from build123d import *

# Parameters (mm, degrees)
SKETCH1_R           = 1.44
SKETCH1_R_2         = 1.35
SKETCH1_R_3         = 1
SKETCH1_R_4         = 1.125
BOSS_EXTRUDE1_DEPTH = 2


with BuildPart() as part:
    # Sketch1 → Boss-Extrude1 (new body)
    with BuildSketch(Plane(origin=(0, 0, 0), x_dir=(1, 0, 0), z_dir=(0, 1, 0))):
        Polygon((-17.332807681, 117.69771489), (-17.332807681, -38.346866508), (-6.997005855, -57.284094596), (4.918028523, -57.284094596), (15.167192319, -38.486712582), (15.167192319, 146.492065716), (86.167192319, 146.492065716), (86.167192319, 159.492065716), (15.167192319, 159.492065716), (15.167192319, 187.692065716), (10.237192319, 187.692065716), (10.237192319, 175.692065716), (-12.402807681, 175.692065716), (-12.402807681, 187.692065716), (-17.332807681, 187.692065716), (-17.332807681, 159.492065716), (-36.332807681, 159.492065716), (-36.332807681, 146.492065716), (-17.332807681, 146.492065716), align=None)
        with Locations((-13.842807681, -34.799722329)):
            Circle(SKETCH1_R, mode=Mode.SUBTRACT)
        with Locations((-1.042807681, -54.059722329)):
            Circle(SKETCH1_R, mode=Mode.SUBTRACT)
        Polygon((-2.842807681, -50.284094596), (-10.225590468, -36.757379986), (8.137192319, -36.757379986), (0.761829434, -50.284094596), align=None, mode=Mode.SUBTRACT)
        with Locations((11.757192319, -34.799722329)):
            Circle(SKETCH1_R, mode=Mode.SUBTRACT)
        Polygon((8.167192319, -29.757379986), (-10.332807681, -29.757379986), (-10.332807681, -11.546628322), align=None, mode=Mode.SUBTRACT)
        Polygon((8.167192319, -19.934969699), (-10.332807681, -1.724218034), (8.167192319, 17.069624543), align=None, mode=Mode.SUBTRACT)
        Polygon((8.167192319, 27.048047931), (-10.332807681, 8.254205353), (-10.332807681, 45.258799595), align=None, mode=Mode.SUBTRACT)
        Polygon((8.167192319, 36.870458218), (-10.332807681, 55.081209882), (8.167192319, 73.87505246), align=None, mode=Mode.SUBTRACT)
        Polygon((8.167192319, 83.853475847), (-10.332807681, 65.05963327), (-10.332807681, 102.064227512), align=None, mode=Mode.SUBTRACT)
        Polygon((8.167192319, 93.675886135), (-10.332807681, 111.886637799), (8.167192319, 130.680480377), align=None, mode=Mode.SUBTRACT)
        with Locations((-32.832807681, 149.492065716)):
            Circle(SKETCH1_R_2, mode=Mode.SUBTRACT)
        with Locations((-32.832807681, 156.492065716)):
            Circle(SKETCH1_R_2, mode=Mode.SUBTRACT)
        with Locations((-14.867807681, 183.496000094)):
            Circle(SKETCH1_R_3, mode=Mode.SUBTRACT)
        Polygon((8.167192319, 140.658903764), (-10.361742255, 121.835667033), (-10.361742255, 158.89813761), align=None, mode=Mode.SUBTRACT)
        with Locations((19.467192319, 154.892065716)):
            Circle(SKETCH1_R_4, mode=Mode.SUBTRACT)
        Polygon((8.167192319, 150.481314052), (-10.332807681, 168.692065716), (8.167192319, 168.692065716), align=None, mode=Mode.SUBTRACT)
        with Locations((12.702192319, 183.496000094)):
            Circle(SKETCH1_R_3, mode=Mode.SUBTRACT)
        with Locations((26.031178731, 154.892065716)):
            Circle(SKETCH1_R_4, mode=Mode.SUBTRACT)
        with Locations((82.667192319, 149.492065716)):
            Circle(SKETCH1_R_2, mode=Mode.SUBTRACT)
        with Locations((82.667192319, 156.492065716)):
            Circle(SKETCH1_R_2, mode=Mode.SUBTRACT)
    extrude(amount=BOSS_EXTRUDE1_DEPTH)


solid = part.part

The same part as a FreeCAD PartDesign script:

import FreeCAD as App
import Part
import Sketcher

V = App.Vector
Q = App.Units.Quantity

doc = App.newDocument("Part")
body = doc.addObject("PartDesign::Body", "Body")

sketch1 = doc.addObject("Sketcher::SketchObject", "Sketch")
body.addObject(sketch1)
sketch1.AttachmentSupport = (doc.XZ_Plane, [""])
sketch1.MapMode = "FlatFace"
sketch1.addGeometry([
    Part.LineSegment(V(-17.332808, 38.346867, 0), V(-6.997006, 57.284095, 0)),
    Part.LineSegment(V(-6.997006, 57.284095, 0), V(4.918029, 57.284095, 0)),
    Part.LineSegment(V(4.918029, 57.284095, 0), V(15.167192, 38.486713, 0)),
    Part.LineSegment(V(15.167192, 38.486713, 0), V(15.167192, -146.492066, 0)),
    Part.LineSegment(V(15.167192, -146.492066, 0), V(86.167192, -146.492066, 0)),
    Part.LineSegment(V(86.167192, -146.492066, 0), V(86.167192, -159.492066, 0)),
    Part.LineSegment(V(86.167192, -159.492066, 0), V(15.167192, -159.492066, 0)),
    Part.LineSegment(V(15.167192, -159.492066, 0), V(15.167192, -187.692066, 0)),
    Part.LineSegment(V(15.167192, -187.692066, 0), V(10.237192, -187.692066, 0)),
    Part.LineSegment(V(10.237192, -187.692066, 0), V(10.237192, -175.692066, 0)),
    Part.LineSegment(V(10.237192, -175.692066, 0), V(-12.402808, -175.692066, 0)),
    Part.LineSegment(V(-12.402808, -175.692066, 0), V(-12.402808, -187.692066, 0)),
    Part.LineSegment(V(-12.402808, -187.692066, 0), V(-17.332808, -187.692066, 0)),
    Part.LineSegment(V(-17.332808, -187.692066, 0), V(-17.332808, -159.492066, 0)),
    Part.LineSegment(V(-17.332808, -159.492066, 0), V(-36.332808, -159.492066, 0)),
    Part.LineSegment(V(-36.332808, -159.492066, 0), V(-36.332808, -146.492066, 0)),
    Part.LineSegment(V(-36.332808, -146.492066, 0), V(-17.332808, -146.492066, 0)),
    Part.LineSegment(V(-17.332808, -146.492066, 0), V(-17.332808, 38.346867, 0)),
    Part.Circle(V(-13.842808, 34.799722, 0), V(0, 0, 1), 1.44),
    Part.Circle(V(-1.042808, 54.059722, 0), V(0, 0, 1), 1.44),
    Part.LineSegment(V(0.761829, 50.284095, 0), V(-2.842808, 50.284095, 0)),
    Part.LineSegment(V(-2.842808, 50.284095, 0), V(-10.22559, 36.75738, 0)),
    Part.LineSegment(V(-10.22559, 36.75738, 0), V(8.137192, 36.75738, 0)),
    Part.LineSegment(V(8.137192, 36.75738, 0), V(0.761829, 50.284095, 0)),
    Part.Circle(V(11.757192, 34.799722, 0), V(0, 0, 1), 1.44),
    Part.LineSegment(V(-10.332808, 11.546628, 0), V(8.167192, 29.75738, 0)),
    Part.LineSegment(V(8.167192, 29.75738, 0), V(-10.332808, 29.75738, 0)),
    Part.LineSegment(V(-10.332808, 29.75738, 0), V(-10.332808, 11.546628, 0)),
    Part.LineSegment(V(8.167192, -17.069625, 0), V(8.167192, 19.93497, 0)),
    Part.LineSegment(V(8.167192, 19.93497, 0), V(-10.332808, 1.724218, 0)),
    Part.LineSegment(V(-10.332808, 1.724218, 0), V(8.167192, -17.069625, 0)),
    Part.LineSegment(V(-10.332808, -45.2588, 0), V(8.167192, -27.048048, 0)),
    Part.LineSegment(V(8.167192, -27.048048, 0), V(-10.332808, -8.254205, 0)),
    Part.LineSegment(V(-10.332808, -8.254205, 0), V(-10.332808, -45.2588, 0)),
    Part.LineSegment(V(8.167192, -73.875052, 0), V(8.167192, -36.870458, 0)),
    Part.LineSegment(V(8.167192, -36.870458, 0), V(-10.332808, -55.08121, 0)),
    Part.LineSegment(V(-10.332808, -55.08121, 0), V(8.167192, -73.875052, 0)),
    Part.LineSegment(V(-10.332808, -102.064228, 0), V(8.167192, -83.853476, 0)),
    Part.LineSegment(V(8.167192, -83.853476, 0), V(-10.332808, -65.059633, 0)),
    Part.LineSegment(V(-10.332808, -65.059633, 0), V(-10.332808, -102.064228, 0)),
    Part.LineSegment(V(8.167192, -130.68048, 0), V(8.167192, -93.675886, 0)),
    Part.LineSegment(V(8.167192, -93.675886, 0), V(-10.332808, -111.886638, 0)),
    Part.LineSegment(V(-10.332808, -111.886638, 0), V(8.167192, -130.68048, 0)),
    Part.Circle(V(-32.832808, -149.492066, 0), V(0, 0, 1), 1.35),
    Part.Circle(V(-32.832808, -156.492066, 0), V(0, 0, 1), 1.35),
    Part.Circle(V(-14.867808, -183.496, 0), V(0, 0, 1), 1),
    Part.LineSegment(V(-10.361742, -158.898138, 0), V(8.167192, -140.658904, 0)),
    Part.LineSegment(V(8.167192, -140.658904, 0), V(-10.361742, -121.835667, 0)),
    Part.LineSegment(V(-10.361742, -121.835667, 0), V(-10.361742, -158.898138, 0)),
    Part.LineSegment(V(8.167192, -168.692066, 0), V(8.167192, -150.481314, 0)),
    Part.LineSegment(V(8.167192, -150.481314, 0), V(-10.332808, -168.692066, 0)),
    Part.LineSegment(V(-10.332808, -168.692066, 0), V(8.167192, -168.692066, 0)),
    Part.Circle(V(19.467192, -154.892066, 0), V(0, 0, 1), 1.125),
    Part.Circle(V(12.702192, -183.496, 0), V(0, 0, 1), 1),
    Part.Circle(V(26.031179, -154.892066, 0), V(0, 0, 1), 1.125),
    Part.Circle(V(82.667192, -149.492066, 0), V(0, 0, 1), 1.35),
    Part.Circle(V(82.667192, -156.492066, 0), V(0, 0, 1), 1.35),
], False)
sketch1.addConstraint([
    Sketcher.Constraint("Coincident", 0, 2, 1, 1),
    Sketcher.Constraint("Coincident", 1, 2, 2, 1),
    Sketcher.Constraint("Coincident", 2, 2, 3, 1),
    Sketcher.Constraint("Coincident", 3, 2, 4, 1),
    Sketcher.Constraint("Coincident", 4, 2, 5, 1),
    Sketcher.Constraint("Coincident", 5, 2, 6, 1),
    Sketcher.Constraint("Coincident", 6, 2, 7, 1),
    Sketcher.Constraint("Coincident", 7, 2, 8, 1),
    Sketcher.Constraint("Coincident", 8, 2, 9, 1),
    Sketcher.Constraint("Coincident", 9, 2, 10, 1),
    Sketcher.Constraint("Coincident", 10, 2, 11, 1),
    Sketcher.Constraint("Coincident", 11, 2, 12, 1),
    Sketcher.Constraint("Coincident", 12, 2, 13, 1),
    Sketcher.Constraint("Coincident", 13, 2, 14, 1),
    Sketcher.Constraint("Coincident", 14, 2, 15, 1),
    Sketcher.Constraint("Coincident", 15, 2, 16, 1),
    Sketcher.Constraint("Coincident", 16, 2, 17, 1),
    Sketcher.Constraint("Coincident", 17, 2, 0, 1),
    Sketcher.Constraint("Coincident", 20, 2, 21, 1),
    Sketcher.Constraint("Coincident", 21, 2, 22, 1),
    Sketcher.Constraint("Coincident", 22, 2, 23, 1),
    Sketcher.Constraint("Coincident", 23, 2, 20, 1),
    Sketcher.Constraint("Coincident", 25, 2, 26, 1),
    Sketcher.Constraint("Coincident", 26, 2, 27, 1),
    Sketcher.Constraint("Coincident", 27, 2, 25, 1),
    Sketcher.Constraint("Coincident", 28, 2, 29, 1),
    Sketcher.Constraint("Coincident", 29, 2, 30, 1),
    Sketcher.Constraint("Coincident", 30, 2, 28, 1),
    Sketcher.Constraint("Coincident", 31, 2, 32, 1),
    Sketcher.Constraint("Coincident", 32, 2, 33, 1),
    Sketcher.Constraint("Coincident", 33, 2, 31, 1),
    Sketcher.Constraint("Coincident", 34, 2, 35, 1),
    Sketcher.Constraint("Coincident", 35, 2, 36, 1),
    Sketcher.Constraint("Coincident", 36, 2, 34, 1),
    Sketcher.Constraint("Coincident", 37, 2, 38, 1),
    Sketcher.Constraint("Coincident", 38, 2, 39, 1),
    Sketcher.Constraint("Coincident", 39, 2, 37, 1),
    Sketcher.Constraint("Coincident", 40, 2, 41, 1),
    Sketcher.Constraint("Coincident", 41, 2, 42, 1),
    Sketcher.Constraint("Coincident", 42, 2, 40, 1),
    Sketcher.Constraint("Coincident", 46, 2, 47, 1),
    Sketcher.Constraint("Coincident", 47, 2, 48, 1),
    Sketcher.Constraint("Coincident", 48, 2, 46, 1),
    Sketcher.Constraint("Coincident", 49, 2, 50, 1),
    Sketcher.Constraint("Coincident", 50, 2, 51, 1),
    Sketcher.Constraint("Coincident", 51, 2, 49, 1),
    Sketcher.Constraint("Horizontal", 1),
    Sketcher.Constraint("Vertical", 3),
    Sketcher.Constraint("Horizontal", 4),
    Sketcher.Constraint("Vertical", 5),
    Sketcher.Constraint("Horizontal", 6),
    Sketcher.Constraint("Vertical", 7),
    Sketcher.Constraint("Horizontal", 8),
    Sketcher.Constraint("Vertical", 9),
    Sketcher.Constraint("Horizontal", 10),
    Sketcher.Constraint("Vertical", 11),
    Sketcher.Constraint("Horizontal", 12),
    Sketcher.Constraint("Vertical", 13),
    Sketcher.Constraint("Horizontal", 14),
    Sketcher.Constraint("Vertical", 15),
    Sketcher.Constraint("Horizontal", 16),
    Sketcher.Constraint("Vertical", 17),
    Sketcher.Constraint("Horizontal", 20),
    Sketcher.Constraint("Horizontal", 22),
    Sketcher.Constraint("Horizontal", 26),
    Sketcher.Constraint("Vertical", 27),
    Sketcher.Constraint("Vertical", 28),
    Sketcher.Constraint("Vertical", 33),
    Sketcher.Constraint("Vertical", 34),
    Sketcher.Constraint("Vertical", 39),
    Sketcher.Constraint("Vertical", 40),
    Sketcher.Constraint("Vertical", 48),
    Sketcher.Constraint("Vertical", 49),
    Sketcher.Constraint("Horizontal", 51),
    Sketcher.Constraint("Equal", 18, 19),
    Sketcher.Constraint("Equal", 19, 24),
    Sketcher.Constraint("Equal", 43, 44),
    Sketcher.Constraint("Equal", 45, 53),
    Sketcher.Constraint("Equal", 52, 54),
    Sketcher.Constraint("Equal", 44, 55),
    Sketcher.Constraint("Equal", 55, 56),
    Sketcher.Constraint("Parallel", 0, 21),
    Sketcher.Constraint("Parallel", 2, 23),
    Sketcher.Constraint("Parallel", 25, 29),
    Sketcher.Constraint("Perpendicular", 29, 30),
    Sketcher.Constraint("Perpendicular", 30, 31),
    Sketcher.Constraint("Perpendicular", 31, 32),
    Sketcher.Constraint("Perpendicular", 32, 35),
    Sketcher.Constraint("Perpendicular", 35, 36),
    Sketcher.Constraint("Perpendicular", 36, 37),
    Sketcher.Constraint("Perpendicular", 37, 38),
    Sketcher.Constraint("Perpendicular", 38, 41),
    Sketcher.Constraint("Perpendicular", 41, 42),
    Sketcher.Constraint("Perpendicular", 42, 46),
    Sketcher.Constraint("Perpendicular", 46, 47),
    Sketcher.Constraint("Perpendicular", 47, 50),
    Sketcher.Constraint("Horizontal", 18, 3, 24, 3),
    Sketcher.Constraint("Horizontal", 45, 3, 53, 3),
    Sketcher.Constraint("Horizontal", 52, 3, 54, 3),
    Sketcher.Constraint("Horizontal", 43, 3, 55, 3),
    Sketcher.Constraint("Horizontal", 44, 3, 56, 3),
    Sketcher.Constraint("Horizontal", 8, 2, 11, 2),
    Sketcher.Constraint("Horizontal", 6, 2, 13, 2),
    Sketcher.Constraint("Horizontal", 4, 2, 15, 2),
    Sketcher.Constraint("Vertical", 43, 3, 44, 3),
    Sketcher.Constraint("Vertical", 55, 3, 56, 3),
    Sketcher.Constraint("Vertical", 3, 2, 6, 2),
    Sketcher.Constraint("Vertical", 13, 2, 16, 2),
    Sketcher.Constraint("Vertical", 25, 2, 28, 2),
    Sketcher.Constraint("Vertical", 27, 2, 29, 2),
    Sketcher.Constraint("Vertical", 30, 2, 31, 2),
    Sketcher.Constraint("Vertical", 29, 2, 32, 2),
    Sketcher.Constraint("Vertical", 31, 2, 34, 2),
    Sketcher.Constraint("Vertical", 33, 2, 35, 2),
    Sketcher.Constraint("Vertical", 36, 2, 37, 2),
    Sketcher.Constraint("Vertical", 35, 2, 38, 2),
    Sketcher.Constraint("Vertical", 37, 2, 40, 2),
    Sketcher.Constraint("Vertical", 39, 2, 41, 2),
    Sketcher.Constraint("Vertical", 42, 2, 46, 2),
    Sketcher.Constraint("Vertical", 46, 2, 49, 2),
    Sketcher.Constraint("Vertical", 41, 2, 50, 2),
    Sketcher.Constraint("Equal", 8, 12),
    Sketcher.Constraint("Diameter", 45, Q("2 mm")),
    Sketcher.Constraint("Diameter", 43, Q("2.7 mm")),
    Sketcher.Constraint("Diameter", 18, Q("2.88 mm")),
    Sketcher.Constraint("Diameter", 52, Q("2.25 mm")),
    Sketcher.Constraint("DistanceX", 4, 1, 4, 2, Q("71 mm")),
    Sketcher.Constraint("DistanceX", 14, 2, 14, 1, Q("19 mm")),
    Sketcher.Constraint("DistanceY", 5, 2, 5, 1, Q("13 mm")),
    Sketcher.Constraint("DistanceY", 9, 1, 9, 2, Q("12 mm")),
    Sketcher.Constraint("DistanceX", 26, 2, 26, 1, Q("18.5 mm")),
    Sketcher.Constraint("DistanceY", 7, 2, 7, 1, Q("28.2 mm")),
    Sketcher.Constraint("DistanceY", 44, 3, 43, 3, Q("7 mm")),
    Sketcher.Constraint("DistanceX", 43, 3, 3, 2, Q("48 mm")),
    Sketcher.Constraint("DistanceY", 43, 3, 3, 2, Q("3 mm")),
    Sketcher.Constraint("DistanceY", 20, 2, 0, 2, Q("7 mm")),
    Sketcher.Constraint("DistanceX", 18, 3, 20, 2, Q("11 mm")),
    Sketcher.Constraint("DistanceY", 25, 2, 22, 2, Q("7 mm")),
    Sketcher.Constraint("DistanceX", 25, 2, 2, 2, Q("7 mm")),
    Sketcher.Constraint("DistanceX", 17, 2, 26, 2, Q("7 mm")),
    Sketcher.Constraint("DistanceY", 10, 2, 50, 2, Q("7 mm")),
    Sketcher.Constraint("DistanceX", 8, 2, 8, 1, Q("4.93 mm")),
    Sketcher.Constraint("DistanceX", 18, 3, 19, 3, Q("12.8 mm")),
    Sketcher.Constraint("DistanceX", 19, 3, 24, 3, Q("12.8 mm")),
    Sketcher.Constraint("DistanceX", 44, 3, 52, 3, Q("52.3 mm")),
    Sketcher.Constraint("DistanceY", 44, 3, 52, 3, Q("1.6 mm")),
    Sketcher.Constraint("DistanceX", 52, 3, 55, 3, Q("63.2 mm")),
    Sketcher.Constraint("DistanceY", 18, 3, 19, 3, Q("19.26 mm")),
    Sketcher.Constraint("DistanceX", 43, 3, 18, 3, Q("18.99 mm")),
    Sketcher.Constraint("DistanceX", 45, 3, 53, 3, Q("27.57 mm")),
    Sketcher.Constraint("DistanceX", 22, 2, 24, 3, Q("3.62 mm")),
    Sketcher.Constraint("DistanceY", 45, 3, -1, 1, Q("183.496 mm")),
    Sketcher.Constraint("DistanceX", 44, 3, 45, 3, Q("17.965 mm")),
    Sketcher.Constraint("DistanceY", 3, 2, 3, 1, Q("184.978778 mm")),
    Sketcher.Constraint("DistanceY", 27, 2, 27, 1, Q("18.210752 mm")),
    Sketcher.Constraint("DistanceY", 48, 2, 48, 1, Q("37.062471 mm")),
    Sketcher.Constraint("DistanceY", 33, 2, -1, 1, Q("45.2588 mm")),
    Sketcher.Constraint("DistanceX", 0, 2, 19, 3, Q("5.954198 mm")),
    Sketcher.Constraint("DistanceX", 23, 2, 1, 2, Q("4.156199 mm")),
    Sketcher.Constraint("DistanceY", 16, 2, 47, 2, Q("24.656399 mm")),
    Sketcher.Constraint("Distance", 0, Q("21.57423 mm")),
    Sketcher.Constraint("Distance", 23, Q("15.406751 mm")),
    Sketcher.Constraint("DistanceX", 1, 1, 1, 2, Q("11.915034 mm")),
    Sketcher.Constraint("DistanceX", -1, 1, 54, 3, Q("26.031179 mm")),
    Sketcher.Constraint("DistanceX", -1, 1, 1, 2, Q("4.918029 mm")),
    Sketcher.Constraint("DistanceY", -1, 1, 21, 2, Q("36.75738 mm")),
    Sketcher.Constraint("DistanceY", -1, 1, 28, 2, Q("19.93497 mm")),
    Sketcher.Constraint("DistanceY", 34, 2, -1, 1, Q("36.870458 mm")),
    Sketcher.Constraint("DistanceY", 42, 2, -1, 1, Q("130.68048 mm")),
    Sketcher.Constraint("DistanceY", 43, 3, 18, 3, Q("184.291788 mm")),
    Sketcher.Constraint("DistanceY", 36, 2, 38, 2, Q("8.815419 mm")),
])
pad1 = doc.addObject("PartDesign::Pad", "Pad")
body.addObject(pad1)
pad1.Profile = sketch1
pad1.Length = 2
pad1.Reversed = True

doc.recompute()
